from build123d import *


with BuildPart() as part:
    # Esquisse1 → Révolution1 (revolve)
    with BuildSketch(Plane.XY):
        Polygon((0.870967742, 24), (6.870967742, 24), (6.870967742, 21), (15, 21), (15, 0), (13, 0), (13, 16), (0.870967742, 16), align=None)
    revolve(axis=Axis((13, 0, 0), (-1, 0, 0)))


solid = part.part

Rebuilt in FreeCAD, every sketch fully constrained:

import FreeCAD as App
import Part
import Sketcher

doc = App.newDocument("Part")
body = doc.addObject("PartDesign::Body", "Body")

sketch1 = doc.addObject("Sketcher::SketchObject", "Sketch")
body.addObject(sketch1)
sketch1.AttachmentSupport = (doc.XY_Plane, [""])
sketch1.MapMode = "FlatFace"
sketch1.addGeometry([
    Part.LineSegment(App.Vector(6.9, 24, 0), App.Vector(0.9, 24, 0)),
    Part.LineSegment(App.Vector(0.9, 24, 0), App.Vector(0.9, 16, 0)),
    Part.LineSegment(App.Vector(0.9, 16, 0), App.Vector(13, 16, 0)),
    Part.LineSegment(App.Vector(13, 16, 0), App.Vector(13, 0, 0)),
    Part.LineSegment(App.Vector(13, 0, 0), App.Vector(15, 0, 0)),
    Part.LineSegment(App.Vector(15, 0, 0), App.Vector(15, 21, 0)),
    Part.LineSegment(App.Vector(15, 21, 0), App.Vector(6.9, 21, 0)),
    Part.LineSegment(App.Vector(6.9, 21, 0), App.Vector(6.9, 24, 0)),
], False)
sketch1.addConstraint([
    Sketcher.Constraint("Coincident", 0, 2, 1, 1),
    Sketcher.Constraint("Coincident", 1, 2, 2, 1),
    Sketcher.Constraint("Coincident", 2, 2, 3, 1),
    Sketcher.Constraint("Coincident", 3, 2, 4, 1),
    Sketcher.Constraint("Coincident", 4, 2, 5, 1),
    Sketcher.Constraint("Coincident", 5, 2, 6, 1),
    Sketcher.Constraint("Coincident", 6, 2, 7, 1),
    Sketcher.Constraint("Coincident", 7, 2, 0, 1),
    Sketcher.Constraint("Horizontal", 0),
    Sketcher.Constraint("Vertical", 1),
    Sketcher.Constraint("Horizontal", 2),
    Sketcher.Constraint("Vertical", 3),
    Sketcher.Constraint("Horizontal", 4),
    Sketcher.Constraint("Vertical", 5),
    Sketcher.Constraint("Horizontal", 6),
    Sketcher.Constraint("Vertical", 7),
    Sketcher.Constraint("PointOnObject", 3, 2, -1),
    Sketcher.Constraint("DistanceX", 0, 2, 0, 1, 6.0),
    Sketcher.Constraint("DistanceX", 4, 1, 4, 2, 2.0),
    Sketcher.Constraint("DistanceY", 1, 2, 1, 1, 8.0),
    Sketcher.Constraint("DistanceY", 3, 2, 3, 1, 16.0),
    Sketcher.Constraint("DistanceY", 5, 1, 5, 2, 21.0),
    Sketcher.Constraint("DistanceX", -1, 1, 2, 2, 13.0),
    Sketcher.Constraint("DistanceX", 2, 1, 2, 2, 12.129032),
])
revolution = doc.addObject("PartDesign::Revolution", "Revolution")
body.addObject(revolution)
revolution.Profile = sketch1
revolution.ReferenceAxis = (sketch1, ["H_Axis"])
revolution.Angle = 360

doc.recompute()
